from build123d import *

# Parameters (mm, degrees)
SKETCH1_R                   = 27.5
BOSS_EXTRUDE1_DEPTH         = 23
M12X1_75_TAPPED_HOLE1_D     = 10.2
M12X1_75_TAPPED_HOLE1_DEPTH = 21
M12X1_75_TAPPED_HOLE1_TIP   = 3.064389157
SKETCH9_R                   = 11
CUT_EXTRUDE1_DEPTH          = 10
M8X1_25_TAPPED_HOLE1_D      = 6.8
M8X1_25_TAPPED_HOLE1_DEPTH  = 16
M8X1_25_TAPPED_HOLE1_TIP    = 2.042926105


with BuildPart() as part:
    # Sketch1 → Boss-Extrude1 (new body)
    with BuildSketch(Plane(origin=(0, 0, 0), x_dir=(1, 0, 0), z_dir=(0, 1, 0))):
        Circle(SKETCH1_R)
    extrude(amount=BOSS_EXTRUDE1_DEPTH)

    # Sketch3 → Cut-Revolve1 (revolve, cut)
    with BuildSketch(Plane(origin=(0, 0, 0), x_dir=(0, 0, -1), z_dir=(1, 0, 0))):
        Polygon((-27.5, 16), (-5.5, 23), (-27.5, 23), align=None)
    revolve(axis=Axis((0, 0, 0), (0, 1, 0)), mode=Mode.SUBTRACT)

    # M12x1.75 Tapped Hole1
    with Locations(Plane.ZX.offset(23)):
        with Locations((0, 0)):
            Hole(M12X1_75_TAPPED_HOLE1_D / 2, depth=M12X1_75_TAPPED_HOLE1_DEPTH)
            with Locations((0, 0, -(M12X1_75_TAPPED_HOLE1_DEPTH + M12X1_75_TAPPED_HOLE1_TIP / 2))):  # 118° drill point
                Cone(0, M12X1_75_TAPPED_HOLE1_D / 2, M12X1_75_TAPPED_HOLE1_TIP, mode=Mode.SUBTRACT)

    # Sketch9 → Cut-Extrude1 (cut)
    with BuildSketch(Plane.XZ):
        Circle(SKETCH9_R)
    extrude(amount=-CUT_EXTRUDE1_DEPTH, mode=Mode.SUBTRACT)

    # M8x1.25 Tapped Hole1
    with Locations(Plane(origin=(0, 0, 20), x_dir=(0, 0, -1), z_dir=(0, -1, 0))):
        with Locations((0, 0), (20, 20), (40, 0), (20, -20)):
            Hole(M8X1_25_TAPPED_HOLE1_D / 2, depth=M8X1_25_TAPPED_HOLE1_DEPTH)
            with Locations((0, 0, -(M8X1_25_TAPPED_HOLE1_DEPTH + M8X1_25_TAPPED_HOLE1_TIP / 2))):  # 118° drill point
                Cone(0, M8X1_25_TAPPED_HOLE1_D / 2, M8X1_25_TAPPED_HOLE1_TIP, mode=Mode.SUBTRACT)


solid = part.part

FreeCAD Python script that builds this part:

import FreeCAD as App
import Part
import Sketcher
from FreeCAD import Vector
Q = App.Units.Quantity


def add_polygon(sketch, points):
    """Adds a closed chain of lines whose ends are joined by coincident constraints."""
    first, n = sketch.GeometryCount, len(points)
    for a, b in zip(points, points[1:] + points[:1]):
        sketch.addGeometry(Part.LineSegment(App.Vector(*a, 0), App.Vector(*b, 0)), False)
    for i in range(n):
        sketch.addConstraint(Sketcher.Constraint("Coincident", first + i, 2, first + (i + 1) % n, 1))

doc = App.newDocument("Part")
body = doc.addObject("PartDesign::Body", "Body")

# Sketch on XZ plane
sketch1 = body.newObject("Sketcher::SketchObject", "Sketch")
sketch1.AttachmentSupport = (doc.getObject("XZ_Plane"), [""])
sketch1.MapMode = "FlatFace"
sketch1.addGeometry(Part.Circle(Vector(0, 0, 0), Vector(0, 0, 1), 28), False)
sketch1.addConstraint(Sketcher.Constraint("Coincident", 0, 3, -1, 1))
sketch1.addConstraint(Sketcher.Constraint("Diameter", 0, Q("55 mm")))
pad1 = body.newObject("PartDesign::Pad", "Pad")
pad1.Profile = sketch1
pad1.Length = 23
pad1.Reversed = True

# Sketch on YZ plane
sketch2 = body.newObject("Sketcher::SketchObject", "Sketch001")
sketch2.AttachmentSupport = (doc.getObject("YZ_Plane"), [""])
sketch2.MapMode = "FlatFace"
add_polygon(sketch2, [(16, 28), (23, 6), (23, 28)])  # lines 0-2
sketch2.addConstraint(Sketcher.Constraint("Vertical", 1))
sketch2.addConstraint(Sketcher.Constraint("Horizontal", 2))
sketch2.addConstraint(Sketcher.Constraint("DistanceX", 2, 2, 2, 1, Q("7 mm")))
sketch2.addConstraint(Sketcher.Constraint("DistanceY", 1, 1, 1, 2, Q("22 mm")))
sketch2.addConstraint(Sketcher.Constraint("DistanceX", -1, 1, 0, 2, Q("23 mm")))
sketch2.addConstraint(Sketcher.Constraint("DistanceY", -1, 1, 0, 2, Q("5.5 mm")))
groove = body.newObject("PartDesign::Groove", "Groove")
groove.Profile = sketch2
groove.ReferenceAxis = (sketch2, ["H_Axis"])
groove.Angle = 360

# Sketch on XZ plane
sketch3 = body.newObject("Sketcher::SketchObject", "Sketch002")
sketch3.AttachmentSupport = (doc.getObject("XZ_Plane"), [""])
sketch3.MapMode = "FlatFace"
sketch3.AttachmentOffset = App.Placement(Vector(0, 0, -23), App.Rotation())
sketch3.addGeometry(Part.Circle(Vector(0, 0, 0), Vector(0, 0, 1), 5), False)
sketch3.addConstraint(Sketcher.Constraint("Coincident", 0, 3, -1, 1))
sketch3.addConstraint(Sketcher.Constraint("Diameter", 0, Q("10.2 mm")))
doc.recompute()
hole = body.newObject("PartDesign::Hole", "Hole")
hole.Profile = sketch3
hole.ThreadType = "None"
hole.Diameter = 10.2
hole.DepthType = "Dimension"
hole.Depth = 21
hole.DrillPoint = "Angled"
hole.DrillPointAngle = 118
hole.Reversed = True

# Sketch on XZ plane
sketch4 = body.newObject("Sketcher::SketchObject", "Sketch003")
sketch4.AttachmentSupport = (doc.getObject("XZ_Plane"), [""])
sketch4.MapMode = "FlatFace"
sketch4.addGeometry(Part.Circle(Vector(0, 0, 0), Vector(0, 0, 1), 11), False)
sketch4.addConstraint(Sketcher.Constraint("Coincident", 0, 3, -1, 1))
sketch4.addConstraint(Sketcher.Constraint("Diameter", 0, Q("22 mm")))
pocket1 = body.newObject("PartDesign::Pocket", "Pocket")
pocket1.Profile = sketch4
pocket1.Length = 10

# Sketch on XZ plane
sketch5 = body.newObject("Sketcher::SketchObject", "Sketch004")
sketch5.AttachmentSupport = (doc.getObject("XZ_Plane"), [""])
sketch5.MapMode = "FlatFace"
sketch5.addGeometry(Part.Circle(Vector(0, 20, 0), Vector(0, 0, 1), 3.4), False)
sketch5.addGeometry(Part.Circle(Vector(20, 0, 0), Vector(0, 0, 1), 3.4), False)
sketch5.addGeometry(Part.Circle(Vector(0, -20, 0), Vector(0, 0, 1), 3.4), False)
sketch5.addGeometry(Part.Circle(Vector(-20, 0, 0), Vector(0, 0, 1), 3.4), False)
sketch5.addConstraint(Sketcher.Constraint("Equal", 0, 1))
sketch5.addConstraint(Sketcher.Constraint("Equal", 1, 2))
sketch5.addConstraint(Sketcher.Constraint("Equal", 2, 3))
sketch5.addConstraint(Sketcher.Constraint("Symmetric", 0, 3, 2, 3, -1, 1))
sketch5.addConstraint(Sketcher.Constraint("Symmetric", 1, 3, 3, 3, -1, 1))
sketch5.addConstraint(Sketcher.Constraint("PointOnObject", 0, 3, -2))
sketch5.addConstraint(Sketcher.Constraint("PointOnObject", 1, 3, -1))
sketch5.addConstraint(Sketcher.Constraint("Diameter", 0, Q("6.8 mm")))
sketch5.addConstraint(Sketcher.Constraint("DistanceY", -1, 1, 0, 3, Q("20 mm")))
sketch5.addConstraint(Sketcher.Constraint("DistanceX", -1, 1, 1, 3, Q("20 mm")))
doc.recompute()
hole2 = body.newObject("PartDesign::Hole", "Hole001")
hole2.Profile = sketch5
hole2.ThreadType = "None"
hole2.Diameter = 6.8
hole2.DepthType = "Dimension"
hole2.Depth = 16
hole2.DrillPoint = "Angled"
hole2.DrillPointAngle = 118

doc.recompute()
